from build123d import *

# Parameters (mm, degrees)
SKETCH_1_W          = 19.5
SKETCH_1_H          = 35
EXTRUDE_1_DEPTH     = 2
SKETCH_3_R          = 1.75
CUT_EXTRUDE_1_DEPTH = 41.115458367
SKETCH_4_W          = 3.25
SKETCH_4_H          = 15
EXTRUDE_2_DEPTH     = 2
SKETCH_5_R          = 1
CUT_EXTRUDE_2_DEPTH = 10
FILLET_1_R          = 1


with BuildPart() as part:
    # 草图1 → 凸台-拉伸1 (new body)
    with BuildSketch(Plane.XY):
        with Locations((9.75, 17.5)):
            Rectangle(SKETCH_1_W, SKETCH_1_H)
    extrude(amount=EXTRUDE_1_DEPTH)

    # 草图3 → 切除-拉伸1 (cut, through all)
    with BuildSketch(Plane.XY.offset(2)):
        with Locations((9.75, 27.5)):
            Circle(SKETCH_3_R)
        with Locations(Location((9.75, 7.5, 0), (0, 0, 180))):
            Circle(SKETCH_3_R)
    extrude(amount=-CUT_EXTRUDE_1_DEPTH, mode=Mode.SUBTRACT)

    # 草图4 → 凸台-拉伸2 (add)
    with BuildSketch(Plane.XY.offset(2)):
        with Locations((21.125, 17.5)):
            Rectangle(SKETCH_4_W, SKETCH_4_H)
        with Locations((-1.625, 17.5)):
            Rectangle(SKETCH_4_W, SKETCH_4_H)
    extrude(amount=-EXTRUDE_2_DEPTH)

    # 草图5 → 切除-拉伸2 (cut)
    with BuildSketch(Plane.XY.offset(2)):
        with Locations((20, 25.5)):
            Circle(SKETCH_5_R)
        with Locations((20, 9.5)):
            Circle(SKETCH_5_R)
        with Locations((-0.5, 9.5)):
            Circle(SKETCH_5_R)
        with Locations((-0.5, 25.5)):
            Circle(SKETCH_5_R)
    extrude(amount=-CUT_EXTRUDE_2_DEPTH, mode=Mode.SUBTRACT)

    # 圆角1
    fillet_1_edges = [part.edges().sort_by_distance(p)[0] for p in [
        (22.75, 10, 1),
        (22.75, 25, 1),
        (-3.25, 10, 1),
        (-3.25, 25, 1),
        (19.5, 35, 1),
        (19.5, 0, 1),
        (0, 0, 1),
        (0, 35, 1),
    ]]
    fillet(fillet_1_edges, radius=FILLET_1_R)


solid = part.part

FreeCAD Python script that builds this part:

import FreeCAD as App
import Part
import Sketcher
Q = App.Units.Quantity


def edges_at(feature, points):
    """Names of the edges that pass closest to the given points."""
    edges = feature.Shape.Edges
    near = lambda p: min(range(len(edges)), key=lambda i: edges[i].distToShape(Part.Vertex(*p))[0])
    return sorted({f"Edge{near(p) + 1}" for p in points})


def add_polygon(sketch, points):
    """Adds a closed chain of lines whose ends are joined by coincident constraints."""
    first, n = sketch.GeometryCount, len(points)
    for a, b in zip(points, points[1:] + points[:1]):
        sketch.addGeometry(Part.LineSegment(App.Vector(*a, 0), App.Vector(*b, 0)), False)
    for i in range(n):
        sketch.addConstraint(Sketcher.Constraint("Coincident", first + i, 2, first + (i + 1) % n, 1))

doc = App.newDocument("Part")
body = doc.addObject("PartDesign::Body", "Body")

sketch1 = body.newObject("Sketcher::SketchObject", "Sketch")
sketch1.AttachmentSupport = (doc.getObject("XY_Plane"), [""])
sketch1.MapMode = "FlatFace"
add_polygon(sketch1, [(0, 35), (0, 0), (20, 0), (20, 35)])
sketch1.addConstraint(Sketcher.Constraint("Vertical", 0))
sketch1.addConstraint(Sketcher.Constraint("Horizontal", 1))
sketch1.addConstraint(Sketcher.Constraint("Vertical", 2))
sketch1.addConstraint(Sketcher.Constraint("Horizontal", 3))
sketch1.addConstraint(Sketcher.Constraint("Coincident", 0, 2, -1, 1))
sketch1.addConstraint(Sketcher.Constraint("DistanceY", 0, 2, 0, 1, Q("35 mm")))
sketch1.addConstraint(Sketcher.Constraint("DistanceX", 1, 1, 1, 2, Q("19.5 mm")))
pad1 = body.newObject("PartDesign::Pad", "Pad")
pad1.Profile = sketch1
pad1.Length = 2

sketch2 = body.newObject("Sketcher::SketchObject", "Sketch001")
sketch2.AttachmentSupport = (doc.getObject("XY_Plane"), [""])
sketch2.MapMode = "FlatFace"
sketch2.AttachmentOffset = App.Placement(App.Vector(0, 0, 2), App.Rotation())
sketch2.addGeometry(Part.Circle(App.Vector(9.8, 27.5, 0), App.Vector(0, 0, 1), 1.8), False)
sketch2.addGeometry(Part.Circle(App.Vector(9.8, 7.5, 0), App.Vector(0, 0, 1), 1.8), False)
sketch2.addConstraint(Sketcher.Constraint("Equal", 0, 1))
sketch2.addConstraint(Sketcher.Constraint("Vertical", 0, 3, 1, 3))
sketch2.addConstraint(Sketcher.Constraint("Diameter", 0, Q("3.5 mm")))
sketch2.addConstraint(Sketcher.Constraint("DistanceY", 1, 3, 0, 3, Q("20 mm")))
sketch2.addConstraint(Sketcher.Constraint("DistanceY", -1, 1, 0, 3, Q("27.5 mm")))
sketch2.addConstraint(Sketcher.Constraint("DistanceX", -1, 1, 0, 3, Q("9.75 mm")))
pocket1 = body.newObject("PartDesign::Pocket", "Pocket")
pocket1.Profile = sketch2
pocket1.Type = "ThroughAll"

sketch3 = body.newObject("Sketcher::SketchObject", "Sketch002")
sketch3.AttachmentSupport = (doc.getObject("XY_Plane"), [""])
sketch3.MapMode = "FlatFace"
sketch3.AttachmentOffset = App.Placement(App.Vector(0, 0, 2), App.Rotation())
add_polygon(sketch3, [(19.5, 25), (19.5, 10), (22.8, 10), (22.8, 25)])
add_polygon(sketch3, [(-3.2, 25), (-3.2, 10), (0, 10), (0, 25)])
sketch3.addConstraint(Sketcher.Constraint("Vertical", 0))
sketch3.addConstraint(Sketcher.Constraint("Horizontal", 1))
sketch3.addConstraint(Sketcher.Constraint("Vertical", 2))
sketch3.addConstraint(Sketcher.Constraint("Horizontal", 3))
sketch3.addConstraint(Sketcher.Constraint("Vertical", 4))
sketch3.addConstraint(Sketcher.Constraint("Horizontal", 5))
sketch3.addConstraint(Sketcher.Constraint("Vertical", 6))
sketch3.addConstraint(Sketcher.Constraint("Horizontal", 7))
sketch3.addConstraint(Sketcher.Constraint("PointOnObject", 5, 2, -2))
sketch3.addConstraint(Sketcher.Constraint("Horizontal", 1, 2, 4, 2))
sketch3.addConstraint(Sketcher.Constraint("Horizontal", 3, 2, 6, 2))
sketch3.addConstraint(Sketcher.Constraint("Equal", 3, 5))
sketch3.addConstraint(Sketcher.Constraint("DistanceY", 0, 2, 0, 1, Q("15 mm")))
sketch3.addConstraint(Sketcher.Constraint("DistanceY", -1, 1, 0, 2, Q("10 mm")))
sketch3.addConstraint(Sketcher.Constraint("DistanceX", 4, 2, 1, 2, Q("26 mm")))
sketch3.addConstraint(Sketcher.Constraint("DistanceX", 1, 1, 1, 2, Q("3.25 mm")))
pad2 = body.newObject("PartDesign::Pad", "Pad001")
pad2.Profile = sketch3
pad2.Length = 2
pad2.Reversed = True

sketch4 = body.newObject("Sketcher::SketchObject", "Sketch003")
sketch4.AttachmentSupport = (doc.getObject("XY_Plane"), [""])
sketch4.MapMode = "FlatFace"
sketch4.AttachmentOffset = App.Placement(App.Vector(0, 0, 2), App.Rotation())
sketch4.addGeometry(Part.Circle(App.Vector(20, 25.5, 0), App.Vector(0, 0, 1), 1), False)
sketch4.addGeometry(Part.Circle(App.Vector(20, 9.5, 0), App.Vector(0, 0, 1), 1), False)
sketch4.addGeometry(Part.Circle(App.Vector(-0.5, 9.5, 0), App.Vector(0, 0, 1), 1), False)
sketch4.addGeometry(Part.Circle(App.Vector(-0.5, 25.5, 0), App.Vector(0, 0, 1), 1), False)
sketch4.addConstraint(Sketcher.Constraint("Equal", 0, 1))
sketch4.addConstraint(Sketcher.Constraint("Equal", 1, 2))
sketch4.addConstraint(Sketcher.Constraint("Equal", 2, 3))
sketch4.addConstraint(Sketcher.Constraint("Horizontal", 1, 3, 2, 3))
sketch4.addConstraint(Sketcher.Constraint("Horizontal", 0, 3, 3, 3))
sketch4.addConstraint(Sketcher.Constraint("Vertical", 0, 3, 1, 3))
sketch4.addConstraint(Sketcher.Constraint("Vertical", 2, 3, 3, 3))
sketch4.addConstraint(Sketcher.Constraint("Diameter", 0, Q("2 mm")))
sketch4.addConstraint(Sketcher.Constraint("DistanceX", -1, 1, 0, 3, Q("20 mm")))
sketch4.addConstraint(Sketcher.Constraint("DistanceY", 1, 3, 0, 3, Q("16 mm")))
sketch4.addConstraint(Sketcher.Constraint("DistanceY", -1, 1, 0, 3, Q("25.5 mm")))
sketch4.addConstraint(Sketcher.Constraint("DistanceX", 2, 3, -1, 1, Q("0.5 mm")))
pocket2 = body.newObject("PartDesign::Pocket", "Pocket001")
pocket2.Profile = sketch4
pocket2.Length = 10
doc.recompute()

fillet = body.newObject("PartDesign::Fillet", "Fillet")
fillet.Base = (pocket2, edges_at(pocket2, [
    (22.75, 10, 1),
    (22.75, 25, 1),
    (-3.25, 10, 1),
    (-3.25, 25, 1),
    (19.5, 35, 1),
    (19.5, 0, 1),
    (0, 0, 1),
    (0, 35, 1),
]))
fillet.Radius = 1

doc.recompute()
